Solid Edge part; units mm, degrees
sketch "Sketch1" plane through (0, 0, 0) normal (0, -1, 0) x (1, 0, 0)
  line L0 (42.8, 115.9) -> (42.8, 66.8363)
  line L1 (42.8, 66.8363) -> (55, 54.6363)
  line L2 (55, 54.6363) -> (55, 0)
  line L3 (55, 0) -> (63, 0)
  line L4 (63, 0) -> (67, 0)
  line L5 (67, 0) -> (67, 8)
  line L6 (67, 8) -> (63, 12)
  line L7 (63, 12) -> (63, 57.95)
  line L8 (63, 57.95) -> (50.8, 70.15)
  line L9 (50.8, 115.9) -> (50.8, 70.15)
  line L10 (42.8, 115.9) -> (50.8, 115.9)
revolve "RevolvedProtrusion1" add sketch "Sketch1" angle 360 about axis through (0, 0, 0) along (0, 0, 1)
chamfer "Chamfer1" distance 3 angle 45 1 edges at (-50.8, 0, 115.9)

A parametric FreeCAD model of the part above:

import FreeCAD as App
import Part
import Sketcher
Q = App.Units.Quantity


def edges_at(feature, points):
    """Names of the edges that pass closest to the given points."""
    edges = feature.Shape.Edges
    near = lambda p: min(range(len(edges)), key=lambda i: edges[i].distToShape(Part.Vertex(*p))[0])
    return sorted({f"Edge{near(p) + 1}" for p in points})

doc = App.newDocument("Part")
body = doc.addObject("PartDesign::Body", "Body")

# Sketch on XZ plane
sketch1 = body.newObject("Sketcher::SketchObject", "Sketch")
sketch1.AttachmentSupport = (doc.getObject("XZ_Plane"), [""])
sketch1.MapMode = "FlatFace"
sketch1.addGeometry([
    Part.LineSegment(App.Vector(51, 116, 0), App.Vector(43, 116, 0)),  # 0
    Part.LineSegment(App.Vector(43, 116, 0), App.Vector(43, 67, 0)),  # 1
    Part.LineSegment(App.Vector(43, 67, 0), App.Vector(55, 55, 0)),  # 2
    Part.LineSegment(App.Vector(55, 55, 0), App.Vector(55, 0, 0)),  # 3
    Part.LineSegment(App.Vector(55, 0, 0), App.Vector(67, 0, 0)),  # 4
    Part.LineSegment(App.Vector(67, 0, 0), App.Vector(67, 8, 0)),  # 5
    Part.LineSegment(App.Vector(67, 8, 0), App.Vector(63, 12, 0)),  # 6
    Part.LineSegment(App.Vector(63, 12, 0), App.Vector(63, 58, 0)),  # 7
    Part.LineSegment(App.Vector(63, 58, 0), App.Vector(51, 70, 0)),  # 8
    Part.LineSegment(App.Vector(51, 70, 0), App.Vector(51, 116, 0)),  # 9
], False)
sketch1.addConstraint([
    Sketcher.Constraint("Coincident", 0, 2, 1, 1),
    Sketcher.Constraint("Coincident", 1, 2, 2, 1),
    Sketcher.Constraint("Coincident", 2, 2, 3, 1),
    Sketcher.Constraint("Coincident", 3, 2, 4, 1),
    Sketcher.Constraint("Coincident", 4, 2, 5, 1),
    Sketcher.Constraint("Coincident", 5, 2, 6, 1),
    Sketcher.Constraint("Coincident", 6, 2, 7, 1),
    Sketcher.Constraint("Coincident", 7, 2, 8, 1),
    Sketcher.Constraint("Coincident", 8, 2, 9, 1),
    Sketcher.Constraint("Coincident", 9, 2, 0, 1),
    Sketcher.Constraint("Horizontal", 0),
    Sketcher.Constraint("Vertical", 1),
    Sketcher.Constraint("Vertical", 3),
    Sketcher.Constraint("Horizontal", 4),
    Sketcher.Constraint("Vertical", 5),
    Sketcher.Constraint("Vertical", 7),
    Sketcher.Constraint("Vertical", 9),
    Sketcher.Constraint("PointOnObject", 3, 2, -1),
    Sketcher.Constraint("Parallel", 2, 6),
    Sketcher.Constraint("Parallel", 6, 8),
    Sketcher.Constraint("Equal", 0, 5),
    Sketcher.Constraint("Equal", 2, 8),
    Sketcher.Constraint("DistanceX", 0, 2, 0, 1, Q("8 mm")),
    Sketcher.Constraint("DistanceX", 4, 1, 4, 2, Q("12 mm")),
    Sketcher.Constraint("Angle", 2, Q("-45 deg")),
    Sketcher.Constraint("DistanceX", -1, 1, 2, 2, Q("55 mm")),
    Sketcher.Constraint("DistanceY", 7, 1, 7, 2, Q("45.95 mm")),
    Sketcher.Constraint("DistanceY", 9, 1, 9, 2, Q("45.75 mm")),
    Sketcher.Constraint("DistanceX", -1, 1, 0, 2, Q("42.8 mm")),
    Sketcher.Constraint("DistanceY", 1, 2, 1, 1, Q("49.0637 mm")),
])
revolution = body.newObject("PartDesign::Revolution", "Revolution")
revolution.Profile = sketch1
revolution.ReferenceAxis = (sketch1, ["V_Axis"])
revolution.Angle = 360
doc.recompute()

chamfer = body.newObject("PartDesign::Chamfer", "Chamfer")
chamfer.Base = (revolution, edges_at(revolution, [(-50.8, 0, 115.9)]))
chamfer.Size = 3

doc.recompute()
